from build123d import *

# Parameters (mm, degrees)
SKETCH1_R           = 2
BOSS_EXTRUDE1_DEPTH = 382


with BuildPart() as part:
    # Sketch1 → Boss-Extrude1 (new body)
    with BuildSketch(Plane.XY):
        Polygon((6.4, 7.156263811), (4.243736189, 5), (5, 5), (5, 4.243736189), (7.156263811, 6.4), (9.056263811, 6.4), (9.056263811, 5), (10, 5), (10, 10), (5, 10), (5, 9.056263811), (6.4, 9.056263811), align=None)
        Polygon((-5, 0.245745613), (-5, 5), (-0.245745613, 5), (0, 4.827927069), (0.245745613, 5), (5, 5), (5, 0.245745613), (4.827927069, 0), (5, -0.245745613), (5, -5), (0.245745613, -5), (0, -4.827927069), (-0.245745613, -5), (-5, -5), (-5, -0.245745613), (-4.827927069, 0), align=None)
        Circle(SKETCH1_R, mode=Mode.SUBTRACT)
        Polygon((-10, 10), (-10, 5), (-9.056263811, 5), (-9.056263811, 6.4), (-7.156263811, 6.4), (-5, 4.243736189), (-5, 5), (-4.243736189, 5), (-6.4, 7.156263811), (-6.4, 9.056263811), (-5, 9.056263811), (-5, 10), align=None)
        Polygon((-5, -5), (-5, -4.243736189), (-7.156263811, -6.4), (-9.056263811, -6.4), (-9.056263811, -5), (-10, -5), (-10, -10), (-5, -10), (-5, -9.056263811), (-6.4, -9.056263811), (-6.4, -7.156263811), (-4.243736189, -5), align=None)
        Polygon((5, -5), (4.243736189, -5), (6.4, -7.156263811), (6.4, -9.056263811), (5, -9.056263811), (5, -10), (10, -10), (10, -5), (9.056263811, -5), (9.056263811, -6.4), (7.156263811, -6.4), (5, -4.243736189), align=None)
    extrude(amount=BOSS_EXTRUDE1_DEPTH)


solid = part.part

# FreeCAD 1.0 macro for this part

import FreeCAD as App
import Part
import Sketcher

V = App.Vector
Q = App.Units.Quantity

doc = App.newDocument("Part")
params = doc.addObject("Spreadsheet::Sheet", "Params")
for row, (alias, value) in enumerate([
    ("sketch1_diameter", "4 mm"),
    ("sketch1_width", "5 mm"),
    ("sketch1_width2", "1.4 mm"),
    ("sketch1_width3", "1.9 mm"),
    ("sketch1_length", "0.3 mm"),
    ("pad1_length", "382 mm"),
], start=1):
    params.set(f"A{row}", alias)
    params.set(f"B{row}", "=" + value)
    params.setAlias(f"B{row}", alias)

body = doc.addObject("PartDesign::Body", "Body")

sketch1 = body.newObject("Sketcher::SketchObject", "Sketch")
sketch1.AttachmentSupport = (doc.getObject("XY_Plane"), [""])
sketch1.MapMode = "FlatFace"
sketch1.addGeometry(Part.LineSegment(V(6.4, 7.16, 0), V(4.24, 5, 0)), False)
sketch1.addGeometry(Part.LineSegment(V(4.24, 5, 0), V(0.25, 5, 0)), False)
sketch1.addGeometry(Part.LineSegment(V(0.25, 5, 0), V(0, 4.83, 0)), False)
sketch1.addGeometry(Part.LineSegment(V(0, 4.83, 0), V(-0.25, 5, 0)), False)
sketch1.addGeometry(Part.LineSegment(V(-0.25, 5, 0), V(-4.24, 5, 0)), False)
sketch1.addGeometry(Part.LineSegment(V(-4.24, 5, 0), V(-6.4, 7.16, 0)), False)
sketch1.addGeometry(Part.LineSegment(V(-6.4, 7.16, 0), V(-6.4, 9.06, 0)), False)
sketch1.addGeometry(Part.LineSegment(V(-6.4, 9.06, 0), V(-5, 9.06, 0)), False)
sketch1.addGeometry(Part.LineSegment(V(-5, 9.06, 0), V(-5, 10, 0)), False)
sketch1.addGeometry(Part.LineSegment(V(-5, 10, 0), V(-10, 10, 0)), False)
sketch1.addGeometry(Part.LineSegment(V(-10, 10, 0), V(-10, 5, 0)), False)
sketch1.addGeometry(Part.LineSegment(V(-10, 5, 0), V(-9.06, 5, 0)), False)
sketch1.addGeometry(Part.LineSegment(V(-9.06, 5, 0), V(-9.06, 6.4, 0)), False)
sketch1.addGeometry(Part.LineSegment(V(-9.06, 6.4, 0), V(-7.16, 6.4, 0)), False)
sketch1.addGeometry(Part.LineSegment(V(-7.16, 6.4, 0), V(-5, 4.24, 0)), False)
sketch1.addGeometry(Part.LineSegment(V(-5, 4.24, 0), V(-5, 0.25, 0)), False)
sketch1.addGeometry(Part.LineSegment(V(-5, 0.25, 0), V(-4.83, 0, 0)), False)
sketch1.addGeometry(Part.LineSegment(V(-4.83, 0, 0), V(-5, -0.25, 0)), False)
sketch1.addGeometry(Part.LineSegment(V(-5, -0.25, 0), V(-5, -4.24, 0)), False)
sketch1.addGeometry(Part.LineSegment(V(-5, -4.24, 0), V(-7.16, -6.4, 0)), False)
sketch1.addGeometry(Part.LineSegment(V(-7.16, -6.4, 0), V(-9.06, -6.4, 0)), False)
sketch1.addGeometry(Part.LineSegment(V(-9.06, -6.4, 0), V(-9.06, -5, 0)), False)
sketch1.addGeometry(Part.LineSegment(V(-9.06, -5, 0), V(-10, -5, 0)), False)
sketch1.addGeometry(Part.LineSegment(V(-10, -5, 0), V(-10, -10, 0)), False)
sketch1.addGeometry(Part.LineSegment(V(-10, -10, 0), V(-5, -10, 0)), False)
sketch1.addGeometry(Part.LineSegment(V(-5, -10, 0), V(-5, -9.06, 0)), False)
sketch1.addGeometry(Part.LineSegment(V(-5, -9.06, 0), V(-6.4, -9.06, 0)), False)
sketch1.addGeometry(Part.LineSegment(V(-6.4, -9.06, 0), V(-6.4, -7.16, 0)), False)
sketch1.addGeometry(Part.LineSegment(V(-6.4, -7.16, 0), V(-4.24, -5, 0)), False)
sketch1.addGeometry(Part.LineSegment(V(-4.24, -5, 0), V(-0.25, -5, 0)), False)
sketch1.addGeometry(Part.LineSegment(V(-0.25, -5, 0), V(0, -4.83, 0)), False)
sketch1.addGeometry(Part.LineSegment(V(0, -4.83, 0), V(0.25, -5, 0)), False)
sketch1.addGeometry(Part.LineSegment(V(0.25, -5, 0), V(4.24, -5, 0)), False)
sketch1.addGeometry(Part.LineSegment(V(4.24, -5, 0), V(6.4, -7.16, 0)), False)
sketch1.addGeometry(Part.LineSegment(V(6.4, -7.16, 0), V(6.4, -9.06, 0)), False)
sketch1.addGeometry(Part.LineSegment(V(6.4, -9.06, 0), V(5, -9.06, 0)), False)
sketch1.addGeometry(Part.LineSegment(V(5, -9.06, 0), V(5, -10, 0)), False)
sketch1.addGeometry(Part.LineSegment(V(5, -10, 0), V(10, -10, 0)), False)
sketch1.addGeometry(Part.LineSegment(V(10, -10, 0), V(10, -5, 0)), False)
sketch1.addGeometry(Part.LineSegment(V(10, -5, 0), V(9.06, -5, 0)), False)
sketch1.addGeometry(Part.LineSegment(V(9.06, -5, 0), V(9.06, -6.4, 0)), False)
sketch1.addGeometry(Part.LineSegment(V(9.06, -6.4, 0), V(7.16, -6.4, 0)), False)
sketch1.addGeometry(Part.LineSegment(V(7.16, -6.4, 0), V(5, -4.24, 0)), False)
sketch1.addGeometry(Part.LineSegment(V(5, -4.24, 0), V(5, -0.25, 0)), False)
sketch1.addGeometry(Part.LineSegment(V(5, -0.25, 0), V(4.83, 0, 0)), False)
sketch1.addGeometry(Part.LineSegment(V(4.83, 0, 0), V(5, 0.25, 0)), False)
sketch1.addGeometry(Part.LineSegment(V(5, 0.25, 0), V(5, 4.24, 0)), False)
sketch1.addGeometry(Part.LineSegment(V(5, 4.24, 0), V(7.16, 6.4, 0)), False)
sketch1.addGeometry(Part.LineSegment(V(7.16, 6.4, 0), V(9.06, 6.4, 0)), False)
sketch1.addGeometry(Part.LineSegment(V(9.06, 6.4, 0), V(9.06, 5, 0)), False)
sketch1.addGeometry(Part.LineSegment(V(9.06, 5, 0), V(10, 5, 0)), False)
sketch1.addGeometry(Part.LineSegment(V(10, 5, 0), V(10, 10, 0)), False)
sketch1.addGeometry(Part.LineSegment(V(10, 10, 0), V(5, 10, 0)), False)
sketch1.addGeometry(Part.LineSegment(V(5, 10, 0), V(5, 9.06, 0)), False)
sketch1.addGeometry(Part.LineSegment(V(5, 9.06, 0), V(6.4, 9.06, 0)), False)
sketch1.addGeometry(Part.LineSegment(V(6.4, 9.06, 0), V(6.4, 7.16, 0)), False)
sketch1.addGeometry(Part.Circle(V(0, 0, 0), V(0, 0, 1), 2), False)
sketch1.addConstraint(Sketcher.Constraint("Coincident", 0, 2, 1, 1))
sketch1.addConstraint(Sketcher.Constraint("Coincident", 1, 2, 2, 1))
sketch1.addConstraint(Sketcher.Constraint("Coincident", 2, 2, 3, 1))
sketch1.addConstraint(Sketcher.Constraint("Coincident", 3, 2, 4, 1))
sketch1.addConstraint(Sketcher.Constraint("Coincident", 4, 2, 5, 1))
sketch1.addConstraint(Sketcher.Constraint("Coincident", 5, 2, 6, 1))
sketch1.addConstraint(Sketcher.Constraint("Coincident", 6, 2, 7, 1))
sketch1.addConstraint(Sketcher.Constraint("Coincident", 7, 2, 8, 1))
sketch1.addConstraint(Sketcher.Constraint("Coincident", 8, 2, 9, 1))
sketch1.addConstraint(Sketcher.Constraint("Coincident", 9, 2, 10, 1))
sketch1.addConstraint(Sketcher.Constraint("Coincident", 10, 2, 11, 1))
sketch1.addConstraint(Sketcher.Constraint("Coincident", 11, 2, 12, 1))
sketch1.addConstraint(Sketcher.Constraint("Coincident", 12, 2, 13, 1))
sketch1.addConstraint(Sketcher.Constraint("Coincident", 13, 2, 14, 1))
sketch1.addConstraint(Sketcher.Constraint("Coincident", 14, 2, 15, 1))
sketch1.addConstraint(Sketcher.Constraint("Coincident", 15, 2, 16, 1))
sketch1.addConstraint(Sketcher.Constraint("Coincident", 16, 2, 17, 1))
sketch1.addConstraint(Sketcher.Constraint("Coincident", 17, 2, 18, 1))
sketch1.addConstraint(Sketcher.Constraint("Coincident", 18, 2, 19, 1))
sketch1.addConstraint(Sketcher.Constraint("Coincident", 19, 2, 20, 1))
sketch1.addConstraint(Sketcher.Constraint("Coincident", 20, 2, 21, 1))
sketch1.addConstraint(Sketcher.Constraint("Coincident", 21, 2, 22, 1))
sketch1.addConstraint(Sketcher.Constraint("Coincident", 22, 2, 23, 1))
sketch1.addConstraint(Sketcher.Constraint("Coincident", 23, 2, 24, 1))
sketch1.addConstraint(Sketcher.Constraint("Coincident", 24, 2, 25, 1))
sketch1.addConstraint(Sketcher.Constraint("Coincident", 25, 2, 26, 1))
sketch1.addConstraint(Sketcher.Constraint("Coincident", 26, 2, 27, 1))
sketch1.addConstraint(Sketcher.Constraint("Coincident", 27, 2, 28, 1))
sketch1.addConstraint(Sketcher.Constraint("Coincident", 28, 2, 29, 1))
sketch1.addConstraint(Sketcher.Constraint("Coincident", 29, 2, 30, 1))
sketch1.addConstraint(Sketcher.Constraint("Coincident", 30, 2, 31, 1))
sketch1.addConstraint(Sketcher.Constraint("Coincident", 31, 2, 32, 1))
sketch1.addConstraint(Sketcher.Constraint("Coincident", 32, 2, 33, 1))
sketch1.addConstraint(Sketcher.Constraint("Coincident", 33, 2, 34, 1))
sketch1.addConstraint(Sketcher.Constraint("Coincident", 34, 2, 35, 1))
sketch1.addConstraint(Sketcher.Constraint("Coincident", 35, 2, 36, 1))
sketch1.addConstraint(Sketcher.Constraint("Coincident", 36, 2, 37, 1))
sketch1.addConstraint(Sketcher.Constraint("Coincident", 37, 2, 38, 1))
sketch1.addConstraint(Sketcher.Constraint("Coincident", 38, 2, 39, 1))
sketch1.addConstraint(Sketcher.Constraint("Coincident", 39, 2, 40, 1))
sketch1.addConstraint(Sketcher.Constraint("Coincident", 40, 2, 41, 1))
sketch1.addConstraint(Sketcher.Constraint("Coincident", 41, 2, 42, 1))
sketch1.addConstraint(Sketcher.Constraint("Coincident", 42, 2, 43, 1))
sketch1.addConstraint(Sketcher.Constraint("Coincident", 43, 2, 44, 1))
sketch1.addConstraint(Sketcher.Constraint("Coincident", 44, 2, 45, 1))
sketch1.addConstraint(Sketcher.Constraint("Coincident", 45, 2, 46, 1))
sketch1.addConstraint(Sketcher.Constraint("Coincident", 46, 2, 47, 1))
sketch1.addConstraint(Sketcher.Constraint("Coincident", 47, 2, 48, 1))
sketch1.addConstraint(Sketcher.Constraint("Coincident", 48, 2, 49, 1))
sketch1.addConstraint(Sketcher.Constraint("Coincident", 49, 2, 50, 1))
sketch1.addConstraint(Sketcher.Constraint("Coincident", 50, 2, 51, 1))
sketch1.addConstraint(Sketcher.Constraint("Coincident", 51, 2, 52, 1))
sketch1.addConstraint(Sketcher.Constraint("Coincident", 52, 2, 53, 1))
sketch1.addConstraint(Sketcher.Constraint("Coincident", 53, 2, 54, 1))
sketch1.addConstraint(Sketcher.Constraint("Coincident", 54, 2, 55, 1))
sketch1.addConstraint(Sketcher.Constraint("Coincident", 55, 2, 0, 1))
sketch1.addConstraint(Sketcher.Constraint("Horizontal", 1))
sketch1.addConstraint(Sketcher.Constraint("Horizontal", 4))
sketch1.addConstraint(Sketcher.Constraint("Vertical", 6))
sketch1.addConstraint(Sketcher.Constraint("Horizontal", 7))
sketch1.addConstraint(Sketcher.Constraint("Vertical", 8))
sketch1.addConstraint(Sketcher.Constraint("Horizontal", 9))
sketch1.addConstraint(Sketcher.Constraint("Vertical", 10))
sketch1.addConstraint(Sketcher.Constraint("Horizontal", 11))
sketch1.addConstraint(Sketcher.Constraint("Vertical", 12))
sketch1.addConstraint(Sketcher.Constraint("Horizontal", 13))
sketch1.addConstraint(Sketcher.Constraint("Vertical", 15))
sketch1.addConstraint(Sketcher.Constraint("Vertical", 18))
sketch1.addConstraint(Sketcher.Constraint("Horizontal", 20))
sketch1.addConstraint(Sketcher.Constraint("Vertical", 21))
sketch1.addConstraint(Sketcher.Constraint("Horizontal", 22))
sketch1.addConstraint(Sketcher.Constraint("Vertical", 23))
sketch1.addConstraint(Sketcher.Constraint("Horizontal", 24))
sketch1.addConstraint(Sketcher.Constraint("Vertical", 25))
sketch1.addConstraint(Sketcher.Constraint("Horizontal", 26))
sketch1.addConstraint(Sketcher.Constraint("Vertical", 27))
sketch1.addConstraint(Sketcher.Constraint("Horizontal", 29))
sketch1.addConstraint(Sketcher.Constraint("Horizontal", 32))
sketch1.addConstraint(Sketcher.Constraint("Vertical", 34))
sketch1.addConstraint(Sketcher.Constraint("Horizontal", 35))
sketch1.addConstraint(Sketcher.Constraint("Vertical", 36))
sketch1.addConstraint(Sketcher.Constraint("Horizontal", 37))
sketch1.addConstraint(Sketcher.Constraint("Vertical", 38))
sketch1.addConstraint(Sketcher.Constraint("Horizontal", 39))
sketch1.addConstraint(Sketcher.Constraint("Vertical", 40))
sketch1.addConstraint(Sketcher.Constraint("Horizontal", 41))
sketch1.addConstraint(Sketcher.Constraint("Vertical", 43))
sketch1.addConstraint(Sketcher.Constraint("Vertical", 46))
sketch1.addConstraint(Sketcher.Constraint("Horizontal", 48))
sketch1.addConstraint(Sketcher.Constraint("Vertical", 49))
sketch1.addConstraint(Sketcher.Constraint("Horizontal", 50))
sketch1.addConstraint(Sketcher.Constraint("Vertical", 51))
sketch1.addConstraint(Sketcher.Constraint("Horizontal", 52))
sketch1.addConstraint(Sketcher.Constraint("Vertical", 53))
sketch1.addConstraint(Sketcher.Constraint("Horizontal", 54))
sketch1.addConstraint(Sketcher.Constraint("Vertical", 55))
sketch1.addConstraint(Sketcher.Constraint("Coincident", 56, 3, -1, 1))
sketch1.addConstraint(Sketcher.Constraint("Symmetric", 0, 2, 28, 2, -1, 1))
sketch1.addConstraint(Sketcher.Constraint("Symmetric", 2, 2, 30, 2, -1, 1))
sketch1.addConstraint(Sketcher.Constraint("Symmetric", 3, 2, 31, 2, -1, 1))
sketch1.addConstraint(Sketcher.Constraint("Symmetric", 5, 2, 33, 2, -1, 1))
sketch1.addConstraint(Sketcher.Constraint("Symmetric", 7, 2, 35, 2, -1, 1))
sketch1.addConstraint(Sketcher.Constraint("Symmetric", 9, 2, 37, 2, -1, 1))
sketch1.addConstraint(Sketcher.Constraint("Symmetric", 11, 2, 39, 2, -1, 1))
sketch1.addConstraint(Sketcher.Constraint("Symmetric", 13, 2, 41, 2, -1, 1))
sketch1.addConstraint(Sketcher.Constraint("Symmetric", 14, 2, 42, 2, -1, 1))
sketch1.addConstraint(Sketcher.Constraint("Symmetric", 16, 2, 44, 2, -1, 1))
sketch1.addConstraint(Sketcher.Constraint("Symmetric", 17, 2, 45, 2, -1, 1))
sketch1.addConstraint(Sketcher.Constraint("Symmetric", 19, 2, 47, 2, -1, 1))
sketch1.addConstraint(Sketcher.Constraint("Symmetric", 21, 2, 49, 2, -1, 1))
sketch1.addConstraint(Sketcher.Constraint("Symmetric", 23, 2, 51, 2, -1, 1))
sketch1.addConstraint(Sketcher.Constraint("Symmetric", 25, 2, 53, 2, -1, 1))
sketch1.addConstraint(Sketcher.Constraint("Symmetric", 27, 2, 55, 2, -1, 1))
sketch1.addConstraint(Sketcher.Constraint("Symmetric", 1, 2, 3, 2, -2))
sketch1.addConstraint(Sketcher.Constraint("Symmetric", 27, 2, 33, 2, -2))
sketch1.addConstraint(Sketcher.Constraint("Symmetric", 25, 2, 35, 2, -2))
sketch1.addConstraint(Sketcher.Constraint("Symmetric", 23, 2, 37, 2, -2))
sketch1.addConstraint(Sketcher.Constraint("Symmetric", 21, 2, 39, 2, -2))
sketch1.addConstraint(Sketcher.Constraint("Symmetric", 19, 2, 41, 2, -2))
sketch1.addConstraint(Sketcher.Constraint("Symmetric", 18, 2, 42, 2, -2))
sketch1.addConstraint(Sketcher.Constraint("PointOnObject", 2, 2, -2))
sketch1.addConstraint(Sketcher.Constraint("PointOnObject", 16, 2, -1))
sketch1.addConstraint(Sketcher.Constraint("Perpendicular", 0, 5))
sketch1.addConstraint(Sketcher.Constraint("Parallel", 5, 14))
sketch1.addConstraint(Sketcher.Constraint("Perpendicular", 2, 16))
sketch1.addConstraint(Sketcher.Constraint("Perpendicular", 3, 17))
sketch1.addConstraint(Sketcher.Constraint("Perpendicular", 14, 19))
sketch1.addConstraint(Sketcher.Constraint("Perpendicular", 16, 30))
sketch1.addConstraint(Sketcher.Constraint("Perpendicular", 28, 33))
sketch1.addConstraint(Sketcher.Constraint("Perpendicular", 30, 44))
sketch1.addConstraint(Sketcher.Constraint("Perpendicular", 42, 47))
sketch1.addConstraint(Sketcher.Constraint("Horizontal", 4, 2, 10, 2))
sketch1.addConstraint(Sketcher.Constraint("Vertical", 8, 2, 14, 2))
sketch1.addConstraint(Sketcher.Constraint("Equal", 48, 6))
sketch1.addConstraint(Sketcher.Constraint("Equal", 50, 8))
sketch1.addConstraint(Sketcher.Constraint("Equal", 52, 10))
sketch1.addConstraint(Sketcher.Constraint("Equal", 54, 12))
sketch1.addConstraint(Sketcher.Constraint("Equal", 32, 15))
sketch1.addConstraint(Sketcher.Constraint("Equal", 3, 16))
sketch1.addConstraint(Sketcher.Constraint("Diameter", 56, 4.0))
sketch1.addConstraint(Sketcher.Constraint("DistanceX", 9, 2, 9, 1, 5.0))
sketch1.addConstraint(Sketcher.Constraint("Angle", 2, Q("-145 deg")))
sketch1.addConstraint(Sketcher.Constraint("DistanceX", 7, 1, 7, 2, 1.4))
sketch1.addConstraint(Sketcher.Constraint("DistanceX", 13, 1, 13, 2, 1.9))
sketch1.addConstraint(Sketcher.Constraint("DistanceY", -1, 1, 0, 2, 5.0))
sketch1.addConstraint(Sketcher.Constraint("Distance", 2, 0.3))
sketch1.addConstraint(Sketcher.Constraint("DistanceX", 1, 2, 1, 1, 3.997991))
sketch1.setExpression("Constraints[139]", "Params.sketch1_diameter")
sketch1.setExpression("Constraints[140]", "Params.sketch1_width")
sketch1.setExpression("Constraints[142]", "Params.sketch1_width2")
sketch1.setExpression("Constraints[143]", "Params.sketch1_width3")
sketch1.setExpression("Constraints[145]", "Params.sketch1_length")
pad1 = body.newObject("PartDesign::Pad", "Pad")
pad1.Profile = sketch1
pad1.setExpression("Length", "Params.pad1_length")

doc.recompute()
